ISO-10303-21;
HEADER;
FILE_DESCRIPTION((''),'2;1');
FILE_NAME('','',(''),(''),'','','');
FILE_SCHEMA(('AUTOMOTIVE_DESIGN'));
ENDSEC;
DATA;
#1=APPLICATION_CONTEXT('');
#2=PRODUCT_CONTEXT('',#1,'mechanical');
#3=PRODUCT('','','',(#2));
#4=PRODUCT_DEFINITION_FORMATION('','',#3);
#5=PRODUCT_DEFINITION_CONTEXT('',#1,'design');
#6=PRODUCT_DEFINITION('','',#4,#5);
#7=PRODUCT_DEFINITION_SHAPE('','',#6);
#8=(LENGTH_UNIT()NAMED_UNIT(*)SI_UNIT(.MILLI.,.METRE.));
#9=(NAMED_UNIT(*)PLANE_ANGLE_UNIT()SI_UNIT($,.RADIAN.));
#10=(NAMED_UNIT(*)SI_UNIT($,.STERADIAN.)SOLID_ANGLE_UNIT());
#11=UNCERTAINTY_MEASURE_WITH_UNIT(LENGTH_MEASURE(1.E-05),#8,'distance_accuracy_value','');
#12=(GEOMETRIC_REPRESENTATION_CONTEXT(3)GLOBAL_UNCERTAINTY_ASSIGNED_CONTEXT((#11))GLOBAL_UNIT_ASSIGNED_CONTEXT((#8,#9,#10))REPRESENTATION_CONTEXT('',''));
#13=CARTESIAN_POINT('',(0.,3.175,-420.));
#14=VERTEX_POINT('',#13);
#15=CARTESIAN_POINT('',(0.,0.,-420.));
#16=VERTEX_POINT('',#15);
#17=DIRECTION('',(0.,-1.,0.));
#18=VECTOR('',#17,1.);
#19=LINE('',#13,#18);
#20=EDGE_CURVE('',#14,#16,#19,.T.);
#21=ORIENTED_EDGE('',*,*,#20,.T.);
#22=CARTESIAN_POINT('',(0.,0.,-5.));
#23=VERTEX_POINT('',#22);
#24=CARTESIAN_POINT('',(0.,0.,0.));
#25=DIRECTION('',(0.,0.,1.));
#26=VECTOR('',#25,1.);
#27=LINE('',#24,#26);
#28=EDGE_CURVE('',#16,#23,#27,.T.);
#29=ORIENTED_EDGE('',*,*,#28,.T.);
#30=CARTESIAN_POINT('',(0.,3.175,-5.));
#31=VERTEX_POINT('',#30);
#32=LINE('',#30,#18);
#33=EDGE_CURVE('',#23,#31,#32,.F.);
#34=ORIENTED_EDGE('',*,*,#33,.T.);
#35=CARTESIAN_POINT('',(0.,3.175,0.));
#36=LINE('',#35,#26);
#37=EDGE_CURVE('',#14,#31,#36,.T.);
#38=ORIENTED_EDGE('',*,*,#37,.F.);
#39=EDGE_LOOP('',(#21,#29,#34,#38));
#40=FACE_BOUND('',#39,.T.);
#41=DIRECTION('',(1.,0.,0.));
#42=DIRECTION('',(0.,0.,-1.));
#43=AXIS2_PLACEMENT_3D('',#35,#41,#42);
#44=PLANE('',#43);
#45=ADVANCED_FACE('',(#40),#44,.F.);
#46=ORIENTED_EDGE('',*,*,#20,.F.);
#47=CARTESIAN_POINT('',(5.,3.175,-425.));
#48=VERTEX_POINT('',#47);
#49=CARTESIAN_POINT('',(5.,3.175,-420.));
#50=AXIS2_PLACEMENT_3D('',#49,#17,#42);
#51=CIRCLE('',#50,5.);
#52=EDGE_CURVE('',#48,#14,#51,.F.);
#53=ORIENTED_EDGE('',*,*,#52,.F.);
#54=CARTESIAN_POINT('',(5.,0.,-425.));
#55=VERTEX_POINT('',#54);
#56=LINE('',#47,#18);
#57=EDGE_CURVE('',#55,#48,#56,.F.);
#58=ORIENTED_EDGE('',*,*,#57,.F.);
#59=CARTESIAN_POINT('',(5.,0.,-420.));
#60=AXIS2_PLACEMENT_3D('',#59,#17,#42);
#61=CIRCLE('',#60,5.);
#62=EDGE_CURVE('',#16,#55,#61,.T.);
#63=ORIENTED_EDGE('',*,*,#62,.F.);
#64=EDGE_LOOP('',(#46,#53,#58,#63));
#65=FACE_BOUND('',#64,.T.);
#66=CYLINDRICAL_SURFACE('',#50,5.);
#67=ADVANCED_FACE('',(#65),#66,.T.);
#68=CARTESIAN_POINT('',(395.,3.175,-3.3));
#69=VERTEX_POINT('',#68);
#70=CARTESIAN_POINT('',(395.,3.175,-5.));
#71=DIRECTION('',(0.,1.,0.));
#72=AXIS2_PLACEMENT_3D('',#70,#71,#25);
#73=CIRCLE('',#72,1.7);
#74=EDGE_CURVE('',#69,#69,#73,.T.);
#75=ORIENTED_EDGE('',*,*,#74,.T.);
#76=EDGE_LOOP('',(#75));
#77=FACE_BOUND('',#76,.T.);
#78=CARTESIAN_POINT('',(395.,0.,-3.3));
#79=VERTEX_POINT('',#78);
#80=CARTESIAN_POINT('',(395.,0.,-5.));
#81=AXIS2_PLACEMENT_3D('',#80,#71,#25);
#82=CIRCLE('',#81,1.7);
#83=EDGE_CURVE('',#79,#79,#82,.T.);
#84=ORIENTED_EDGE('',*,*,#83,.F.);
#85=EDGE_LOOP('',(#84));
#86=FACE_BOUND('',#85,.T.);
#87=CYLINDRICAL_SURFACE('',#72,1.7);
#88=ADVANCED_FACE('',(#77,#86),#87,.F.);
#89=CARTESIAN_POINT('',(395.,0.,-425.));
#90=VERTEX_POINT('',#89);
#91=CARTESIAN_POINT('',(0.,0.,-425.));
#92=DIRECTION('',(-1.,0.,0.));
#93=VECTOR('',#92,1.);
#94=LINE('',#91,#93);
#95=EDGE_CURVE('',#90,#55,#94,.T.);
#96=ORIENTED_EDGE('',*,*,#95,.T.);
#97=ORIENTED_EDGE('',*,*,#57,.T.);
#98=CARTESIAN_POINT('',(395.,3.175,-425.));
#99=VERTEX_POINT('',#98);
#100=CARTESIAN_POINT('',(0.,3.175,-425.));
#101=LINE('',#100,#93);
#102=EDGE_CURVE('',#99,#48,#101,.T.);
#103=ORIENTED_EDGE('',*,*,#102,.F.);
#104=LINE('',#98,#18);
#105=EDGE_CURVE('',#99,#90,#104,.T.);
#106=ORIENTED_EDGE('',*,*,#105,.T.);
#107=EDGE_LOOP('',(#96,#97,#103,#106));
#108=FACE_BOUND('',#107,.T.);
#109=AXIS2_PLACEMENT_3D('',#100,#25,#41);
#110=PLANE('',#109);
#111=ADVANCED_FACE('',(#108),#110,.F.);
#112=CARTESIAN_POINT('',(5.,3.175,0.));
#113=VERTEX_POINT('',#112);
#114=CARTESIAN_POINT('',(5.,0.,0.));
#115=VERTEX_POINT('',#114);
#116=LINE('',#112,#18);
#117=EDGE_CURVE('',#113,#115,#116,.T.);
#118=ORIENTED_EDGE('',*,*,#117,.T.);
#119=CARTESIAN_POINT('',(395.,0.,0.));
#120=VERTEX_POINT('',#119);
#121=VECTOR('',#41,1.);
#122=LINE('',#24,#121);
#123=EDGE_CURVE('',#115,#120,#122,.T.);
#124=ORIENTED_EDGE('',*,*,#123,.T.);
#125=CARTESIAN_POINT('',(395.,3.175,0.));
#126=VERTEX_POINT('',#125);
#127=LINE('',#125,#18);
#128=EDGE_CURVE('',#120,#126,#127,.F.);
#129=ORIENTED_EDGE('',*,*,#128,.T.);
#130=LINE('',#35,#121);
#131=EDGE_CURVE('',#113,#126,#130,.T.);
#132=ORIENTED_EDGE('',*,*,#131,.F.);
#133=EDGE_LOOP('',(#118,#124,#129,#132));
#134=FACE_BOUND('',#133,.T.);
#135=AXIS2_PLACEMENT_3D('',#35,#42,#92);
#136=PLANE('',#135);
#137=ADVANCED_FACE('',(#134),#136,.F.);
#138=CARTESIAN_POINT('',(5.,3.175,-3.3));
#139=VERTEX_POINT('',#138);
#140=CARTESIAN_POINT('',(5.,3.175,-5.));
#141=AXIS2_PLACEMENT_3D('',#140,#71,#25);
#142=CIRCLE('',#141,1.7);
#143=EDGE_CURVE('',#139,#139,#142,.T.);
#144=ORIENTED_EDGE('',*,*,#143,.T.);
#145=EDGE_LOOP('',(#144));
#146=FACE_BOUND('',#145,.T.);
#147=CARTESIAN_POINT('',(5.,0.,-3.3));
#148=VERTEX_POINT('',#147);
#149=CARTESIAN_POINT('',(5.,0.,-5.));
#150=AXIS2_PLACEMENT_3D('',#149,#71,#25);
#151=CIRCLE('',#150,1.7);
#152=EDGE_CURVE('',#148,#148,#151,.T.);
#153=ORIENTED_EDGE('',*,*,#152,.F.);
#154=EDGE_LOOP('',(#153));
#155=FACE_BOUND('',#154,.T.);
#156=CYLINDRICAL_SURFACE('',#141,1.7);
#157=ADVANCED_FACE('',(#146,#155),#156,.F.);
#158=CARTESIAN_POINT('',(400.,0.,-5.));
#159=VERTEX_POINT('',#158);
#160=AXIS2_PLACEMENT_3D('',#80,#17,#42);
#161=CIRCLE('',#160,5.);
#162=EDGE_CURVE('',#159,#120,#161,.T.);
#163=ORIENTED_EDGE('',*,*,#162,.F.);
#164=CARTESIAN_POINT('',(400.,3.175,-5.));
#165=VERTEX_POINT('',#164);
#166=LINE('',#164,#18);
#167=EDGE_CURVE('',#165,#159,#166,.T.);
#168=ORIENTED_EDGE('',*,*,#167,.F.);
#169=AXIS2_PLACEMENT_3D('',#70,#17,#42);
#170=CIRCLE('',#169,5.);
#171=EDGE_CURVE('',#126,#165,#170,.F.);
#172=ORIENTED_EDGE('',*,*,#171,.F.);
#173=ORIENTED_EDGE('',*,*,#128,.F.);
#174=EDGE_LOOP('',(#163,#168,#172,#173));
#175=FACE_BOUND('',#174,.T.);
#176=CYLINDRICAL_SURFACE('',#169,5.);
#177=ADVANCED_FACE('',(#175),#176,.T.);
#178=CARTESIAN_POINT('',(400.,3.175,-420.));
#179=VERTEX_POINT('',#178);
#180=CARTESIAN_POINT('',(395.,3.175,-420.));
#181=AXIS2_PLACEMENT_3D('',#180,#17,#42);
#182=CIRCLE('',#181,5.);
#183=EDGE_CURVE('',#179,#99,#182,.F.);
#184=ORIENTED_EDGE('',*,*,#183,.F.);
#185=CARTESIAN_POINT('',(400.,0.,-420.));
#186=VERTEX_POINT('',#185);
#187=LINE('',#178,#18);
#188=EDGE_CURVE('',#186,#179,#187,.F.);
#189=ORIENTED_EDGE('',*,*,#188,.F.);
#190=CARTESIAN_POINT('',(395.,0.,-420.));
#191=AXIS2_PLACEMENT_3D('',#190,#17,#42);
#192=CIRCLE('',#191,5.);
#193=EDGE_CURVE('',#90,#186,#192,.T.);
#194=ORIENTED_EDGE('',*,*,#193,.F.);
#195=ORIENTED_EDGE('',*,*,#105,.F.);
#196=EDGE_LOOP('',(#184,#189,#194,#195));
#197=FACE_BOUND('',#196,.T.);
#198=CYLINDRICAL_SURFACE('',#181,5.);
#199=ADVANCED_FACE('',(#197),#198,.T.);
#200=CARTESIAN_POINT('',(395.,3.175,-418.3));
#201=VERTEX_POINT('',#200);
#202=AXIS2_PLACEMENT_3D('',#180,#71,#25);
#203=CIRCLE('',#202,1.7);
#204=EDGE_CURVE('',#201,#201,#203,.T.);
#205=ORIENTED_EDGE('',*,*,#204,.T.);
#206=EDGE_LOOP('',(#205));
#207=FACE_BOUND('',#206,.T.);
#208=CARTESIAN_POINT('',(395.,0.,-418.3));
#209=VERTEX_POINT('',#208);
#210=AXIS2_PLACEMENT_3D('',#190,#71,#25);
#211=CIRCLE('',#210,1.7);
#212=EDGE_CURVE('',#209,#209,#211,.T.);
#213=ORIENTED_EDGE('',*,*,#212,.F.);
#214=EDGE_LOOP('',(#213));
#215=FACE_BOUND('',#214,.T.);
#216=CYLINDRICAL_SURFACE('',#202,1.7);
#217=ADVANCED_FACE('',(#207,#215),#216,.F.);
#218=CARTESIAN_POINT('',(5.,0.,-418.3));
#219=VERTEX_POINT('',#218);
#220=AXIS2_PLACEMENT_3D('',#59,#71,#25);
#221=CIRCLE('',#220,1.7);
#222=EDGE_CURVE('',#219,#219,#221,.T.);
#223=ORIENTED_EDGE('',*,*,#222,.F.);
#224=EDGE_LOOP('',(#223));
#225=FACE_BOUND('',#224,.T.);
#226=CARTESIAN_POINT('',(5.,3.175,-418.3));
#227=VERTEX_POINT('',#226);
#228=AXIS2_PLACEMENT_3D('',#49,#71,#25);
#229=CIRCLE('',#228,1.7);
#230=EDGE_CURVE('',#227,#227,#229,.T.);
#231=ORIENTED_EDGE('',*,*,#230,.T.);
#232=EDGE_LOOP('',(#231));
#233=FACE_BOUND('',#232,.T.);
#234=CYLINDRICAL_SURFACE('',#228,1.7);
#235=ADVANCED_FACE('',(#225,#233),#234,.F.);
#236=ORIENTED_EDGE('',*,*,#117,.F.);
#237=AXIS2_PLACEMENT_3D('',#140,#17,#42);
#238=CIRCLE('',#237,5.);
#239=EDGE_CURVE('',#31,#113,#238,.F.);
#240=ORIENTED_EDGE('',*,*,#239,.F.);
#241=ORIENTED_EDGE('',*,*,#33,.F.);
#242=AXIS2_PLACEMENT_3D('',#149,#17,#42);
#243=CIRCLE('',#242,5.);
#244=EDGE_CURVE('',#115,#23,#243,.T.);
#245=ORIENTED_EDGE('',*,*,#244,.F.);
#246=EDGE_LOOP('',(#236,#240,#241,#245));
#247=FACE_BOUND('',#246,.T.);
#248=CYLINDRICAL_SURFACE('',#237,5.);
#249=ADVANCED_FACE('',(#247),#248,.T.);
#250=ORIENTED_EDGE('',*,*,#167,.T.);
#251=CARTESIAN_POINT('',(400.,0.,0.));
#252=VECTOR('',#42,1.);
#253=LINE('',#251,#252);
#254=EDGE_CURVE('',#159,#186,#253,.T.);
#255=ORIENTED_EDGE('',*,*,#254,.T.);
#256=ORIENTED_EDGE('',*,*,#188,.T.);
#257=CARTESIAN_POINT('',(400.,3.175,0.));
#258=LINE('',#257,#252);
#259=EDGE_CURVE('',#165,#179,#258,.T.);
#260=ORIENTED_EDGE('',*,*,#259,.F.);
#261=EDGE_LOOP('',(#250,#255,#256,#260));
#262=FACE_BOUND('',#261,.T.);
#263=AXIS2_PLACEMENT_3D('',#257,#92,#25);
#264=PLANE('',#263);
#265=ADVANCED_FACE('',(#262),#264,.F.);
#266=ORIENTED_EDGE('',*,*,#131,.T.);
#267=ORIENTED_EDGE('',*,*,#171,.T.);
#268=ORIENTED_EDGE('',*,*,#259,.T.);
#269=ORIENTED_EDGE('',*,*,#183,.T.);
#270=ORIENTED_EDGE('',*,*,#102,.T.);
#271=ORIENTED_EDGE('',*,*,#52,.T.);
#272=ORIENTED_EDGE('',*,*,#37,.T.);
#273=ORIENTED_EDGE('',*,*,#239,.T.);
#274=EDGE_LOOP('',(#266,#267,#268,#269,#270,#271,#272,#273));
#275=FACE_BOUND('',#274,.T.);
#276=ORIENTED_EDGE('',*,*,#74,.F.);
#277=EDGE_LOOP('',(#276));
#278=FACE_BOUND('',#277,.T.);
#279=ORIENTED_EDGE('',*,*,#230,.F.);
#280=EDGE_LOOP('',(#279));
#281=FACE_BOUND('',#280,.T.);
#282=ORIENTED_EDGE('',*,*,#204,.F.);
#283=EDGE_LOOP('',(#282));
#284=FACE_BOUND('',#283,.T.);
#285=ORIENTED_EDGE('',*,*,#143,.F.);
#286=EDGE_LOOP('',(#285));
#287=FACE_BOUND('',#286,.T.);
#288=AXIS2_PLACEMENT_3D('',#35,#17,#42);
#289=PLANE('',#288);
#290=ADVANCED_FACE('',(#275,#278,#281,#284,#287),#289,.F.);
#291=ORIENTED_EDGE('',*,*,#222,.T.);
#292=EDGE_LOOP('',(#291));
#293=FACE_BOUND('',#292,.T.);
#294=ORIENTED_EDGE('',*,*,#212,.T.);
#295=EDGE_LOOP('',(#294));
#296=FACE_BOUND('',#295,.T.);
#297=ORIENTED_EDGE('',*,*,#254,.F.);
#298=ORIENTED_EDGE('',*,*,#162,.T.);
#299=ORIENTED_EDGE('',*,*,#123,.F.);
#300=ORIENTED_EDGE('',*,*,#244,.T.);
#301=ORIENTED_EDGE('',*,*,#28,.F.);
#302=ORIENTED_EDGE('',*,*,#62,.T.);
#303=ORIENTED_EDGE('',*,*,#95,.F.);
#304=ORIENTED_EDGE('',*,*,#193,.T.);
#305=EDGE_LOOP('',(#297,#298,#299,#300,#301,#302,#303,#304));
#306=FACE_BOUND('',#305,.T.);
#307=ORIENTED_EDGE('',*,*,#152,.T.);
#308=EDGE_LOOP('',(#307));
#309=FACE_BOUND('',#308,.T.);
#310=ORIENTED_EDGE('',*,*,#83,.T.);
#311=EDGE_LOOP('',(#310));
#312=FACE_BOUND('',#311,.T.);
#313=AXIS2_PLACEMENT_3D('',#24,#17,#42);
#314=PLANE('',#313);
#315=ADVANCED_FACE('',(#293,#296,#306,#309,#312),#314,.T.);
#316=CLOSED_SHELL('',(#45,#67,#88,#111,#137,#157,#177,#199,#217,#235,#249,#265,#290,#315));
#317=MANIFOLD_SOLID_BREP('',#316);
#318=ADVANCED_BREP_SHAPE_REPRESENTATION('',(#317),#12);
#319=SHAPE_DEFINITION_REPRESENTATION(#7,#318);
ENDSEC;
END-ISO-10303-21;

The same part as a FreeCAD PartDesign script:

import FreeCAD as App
import Part
import Sketcher


def edges_at(feature, points):
    """Names of the edges that pass closest to the given points."""
    edges = feature.Shape.Edges
    near = lambda p: min(range(len(edges)), key=lambda i: edges[i].distToShape(Part.Vertex(*p))[0])
    return sorted({f"Edge{near(p) + 1}" for p in points})


def add_polygon(sketch, points):
    """Adds a closed chain of lines whose ends are joined by coincident constraints."""
    first, n = sketch.GeometryCount, len(points)
    for a, b in zip(points, points[1:] + points[:1]):
        sketch.addGeometry(Part.LineSegment(App.Vector(*a, 0), App.Vector(*b, 0)), False)
    for i in range(n):
        sketch.addConstraint(Sketcher.Constraint("Coincident", first + i, 2, first + (i + 1) % n, 1))

doc = App.newDocument("Part")
body = doc.addObject("PartDesign::Body", "Body")

# Sketch on XZ plane
sketch1 = body.newObject("Sketcher::SketchObject", "Sketch")
sketch1.AttachmentSupport = (doc.getObject("XZ_Plane"), [""])
sketch1.MapMode = "FlatFace"
add_polygon(sketch1, [(0, -425), (0, 0), (400, 0), (400, -425)])  # lines 0-3
sketch1.addConstraint([
    Sketcher.Constraint("Vertical", 0),
    Sketcher.Constraint("Horizontal", 1),
    Sketcher.Constraint("Vertical", 2),
    Sketcher.Constraint("Horizontal", 3),
    Sketcher.Constraint("Coincident", 0, 2, -1, 1),
    Sketcher.Constraint("DistanceX", 1, 1, 1, 2, 400.0),
    Sketcher.Constraint("DistanceY", 0, 1, 0, 2, 425.0),
])
pad1 = body.newObject("PartDesign::Pad", "Pad")
pad1.Profile = sketch1
pad1.Length = 3.175
pad1.Reversed = True

# Sketch on XZ plane
sketch2 = body.newObject("Sketcher::SketchObject", "Sketch001")
sketch2.AttachmentSupport = (doc.getObject("XZ_Plane"), [""])
sketch2.MapMode = "FlatFace"
sketch2.AttachmentOffset = App.Placement(App.Vector(0, 0, -3.175), App.Rotation())
sketch2.addGeometry([
    Part.Circle(App.Vector(5, -420, 0), App.Vector(0, 0, 1), 1.7),
    Part.Circle(App.Vector(395, -420, 0), App.Vector(0, 0, 1), 1.7),
    Part.Circle(App.Vector(5, -5, 0), App.Vector(0, 0, 1), 1.7),
    Part.Circle(App.Vector(395, -5, 0), App.Vector(0, 0, 1), 1.7),
], False)
sketch2.addConstraint([
    Sketcher.Constraint("Equal", 0, 1),
    Sketcher.Constraint("Equal", 1, 2),
    Sketcher.Constraint("Equal", 2, 3),
    Sketcher.Constraint("Horizontal", 0, 3, 1, 3),
    Sketcher.Constraint("Horizontal", 2, 3, 3, 3),
    Sketcher.Constraint("Vertical", 0, 3, 2, 3),
    Sketcher.Constraint("Vertical", 1, 3, 3, 3),
    Sketcher.Constraint("Diameter", 0, 3.4),
    Sketcher.Constraint("DistanceX", -1, 1, 0, 3, 5.0),
    Sketcher.Constraint("DistanceY", 0, 3, -1, 1, 420.0),
    Sketcher.Constraint("DistanceX", -1, 1, 1, 3, 395.0),
    Sketcher.Constraint("DistanceY", 2, 3, -1, 1, 5.0),
])
doc.recompute()
hole = body.newObject("PartDesign::Hole", "Hole")
hole.Profile = sketch2
hole.ThreadType = "None"
hole.Diameter = 3.4
hole.DepthType = "ThroughAll"
hole.Reversed = True
doc.recompute()

fillet = body.newObject("PartDesign::Fillet", "Fillet")
fillet.Base = (hole, edges_at(hole, [
    (0, 1.587, -425),
    (400, 1.587, -425),
    (400, 1.587, 0),
    (0, 1.587, 0),
]))
fillet.Radius = 5

doc.recompute()
